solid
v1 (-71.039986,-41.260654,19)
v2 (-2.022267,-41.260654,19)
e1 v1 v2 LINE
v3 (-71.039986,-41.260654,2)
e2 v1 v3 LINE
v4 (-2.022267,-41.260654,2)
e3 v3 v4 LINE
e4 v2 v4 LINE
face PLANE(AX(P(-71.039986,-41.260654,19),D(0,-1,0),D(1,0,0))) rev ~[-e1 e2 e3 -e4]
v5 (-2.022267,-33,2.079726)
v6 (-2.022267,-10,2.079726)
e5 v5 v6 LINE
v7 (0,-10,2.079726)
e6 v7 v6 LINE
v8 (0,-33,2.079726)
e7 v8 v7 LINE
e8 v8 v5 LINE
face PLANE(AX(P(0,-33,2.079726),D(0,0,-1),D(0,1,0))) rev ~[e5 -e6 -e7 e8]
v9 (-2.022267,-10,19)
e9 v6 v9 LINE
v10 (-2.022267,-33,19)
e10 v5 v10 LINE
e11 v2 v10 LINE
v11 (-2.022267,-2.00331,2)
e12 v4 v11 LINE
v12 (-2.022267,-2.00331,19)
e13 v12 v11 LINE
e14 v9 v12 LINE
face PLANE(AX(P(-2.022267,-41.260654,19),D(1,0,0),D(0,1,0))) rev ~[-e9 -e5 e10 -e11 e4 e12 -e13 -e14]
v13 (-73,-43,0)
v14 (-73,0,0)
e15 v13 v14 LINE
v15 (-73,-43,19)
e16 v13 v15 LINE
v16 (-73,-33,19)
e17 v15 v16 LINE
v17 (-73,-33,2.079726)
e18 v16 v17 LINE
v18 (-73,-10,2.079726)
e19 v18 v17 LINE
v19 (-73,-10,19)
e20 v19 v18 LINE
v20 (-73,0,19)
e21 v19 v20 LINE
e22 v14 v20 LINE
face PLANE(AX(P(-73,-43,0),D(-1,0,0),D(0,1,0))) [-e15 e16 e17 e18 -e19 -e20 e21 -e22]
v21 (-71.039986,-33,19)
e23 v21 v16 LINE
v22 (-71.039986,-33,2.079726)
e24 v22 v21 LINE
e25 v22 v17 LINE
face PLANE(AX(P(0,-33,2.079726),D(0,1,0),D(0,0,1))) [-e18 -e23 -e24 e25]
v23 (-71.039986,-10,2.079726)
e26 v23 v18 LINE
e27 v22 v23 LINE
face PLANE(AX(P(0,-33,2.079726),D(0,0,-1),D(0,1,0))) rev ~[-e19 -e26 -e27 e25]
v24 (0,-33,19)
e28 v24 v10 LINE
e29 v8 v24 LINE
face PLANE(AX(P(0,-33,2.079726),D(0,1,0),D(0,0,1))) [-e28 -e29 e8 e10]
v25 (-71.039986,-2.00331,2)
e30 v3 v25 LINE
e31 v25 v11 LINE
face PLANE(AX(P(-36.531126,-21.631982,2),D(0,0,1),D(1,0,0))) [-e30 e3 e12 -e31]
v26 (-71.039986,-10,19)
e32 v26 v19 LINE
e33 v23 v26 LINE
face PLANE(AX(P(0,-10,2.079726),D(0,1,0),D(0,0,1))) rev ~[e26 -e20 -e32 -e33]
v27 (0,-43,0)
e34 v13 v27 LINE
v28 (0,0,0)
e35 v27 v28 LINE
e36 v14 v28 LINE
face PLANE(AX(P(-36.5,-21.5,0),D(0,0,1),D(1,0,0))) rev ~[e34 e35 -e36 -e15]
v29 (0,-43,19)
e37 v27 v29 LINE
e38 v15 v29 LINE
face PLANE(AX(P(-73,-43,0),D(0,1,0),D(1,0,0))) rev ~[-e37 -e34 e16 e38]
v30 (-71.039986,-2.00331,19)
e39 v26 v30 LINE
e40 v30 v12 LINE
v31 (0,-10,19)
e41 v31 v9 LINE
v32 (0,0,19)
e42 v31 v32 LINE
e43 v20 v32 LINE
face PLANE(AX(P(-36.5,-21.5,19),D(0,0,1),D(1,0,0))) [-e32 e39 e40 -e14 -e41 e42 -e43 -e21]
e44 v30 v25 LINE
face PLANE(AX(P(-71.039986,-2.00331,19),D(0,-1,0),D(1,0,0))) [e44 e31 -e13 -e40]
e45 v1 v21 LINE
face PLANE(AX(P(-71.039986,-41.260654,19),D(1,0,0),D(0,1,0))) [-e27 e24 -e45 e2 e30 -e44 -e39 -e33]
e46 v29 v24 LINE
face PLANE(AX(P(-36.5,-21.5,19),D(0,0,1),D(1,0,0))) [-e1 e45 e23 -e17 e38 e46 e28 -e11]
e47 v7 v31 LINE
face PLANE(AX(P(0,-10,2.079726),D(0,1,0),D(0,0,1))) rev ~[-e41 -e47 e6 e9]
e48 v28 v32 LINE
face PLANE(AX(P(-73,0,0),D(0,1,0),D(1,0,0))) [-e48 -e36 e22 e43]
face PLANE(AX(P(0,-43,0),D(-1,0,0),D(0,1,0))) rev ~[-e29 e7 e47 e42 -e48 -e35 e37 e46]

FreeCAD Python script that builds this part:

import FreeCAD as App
import Part
import Sketcher
from FreeCAD import Vector
Q = App.Units.Quantity


def add_polygon(sketch, points):
    """Adds a closed chain of lines whose ends are joined by coincident constraints."""
    first, n = sketch.GeometryCount, len(points)
    for a, b in zip(points, points[1:] + points[:1]):
        sketch.addGeometry(Part.LineSegment(App.Vector(*a, 0), App.Vector(*b, 0)), False)
    for i in range(n):
        sketch.addConstraint(Sketcher.Constraint("Coincident", first + i, 2, first + (i + 1) % n, 1))

doc = App.newDocument("Part")
body = doc.addObject("PartDesign::Body", "Body")

# Sketch on XY plane
sketch1 = body.newObject("Sketcher::SketchObject", "Sketch")
sketch1.AttachmentSupport = (doc.getObject("XY_Plane"), [""])
sketch1.MapMode = "FlatFace"
add_polygon(sketch1, [(-73, 0), (-73, -43), (0, -43), (0, 0)])  # lines 0-3
sketch1.addConstraint(Sketcher.Constraint("Vertical", 0))
sketch1.addConstraint(Sketcher.Constraint("Horizontal", 1))
sketch1.addConstraint(Sketcher.Constraint("Vertical", 2))
sketch1.addConstraint(Sketcher.Constraint("Horizontal", 3))
sketch1.addConstraint(Sketcher.Constraint("Coincident", 2, 2, -1, 1))
sketch1.addConstraint(Sketcher.Constraint("DistanceX", 1, 1, 1, 2, Q("73 mm")))
sketch1.addConstraint(Sketcher.Constraint("DistanceY", 0, 2, 0, 1, Q("43 mm")))
pad1 = body.newObject("PartDesign::Pad", "Pad")
pad1.Profile = sketch1
pad1.Length = 19

# Sketch on XY plane
sketch2 = body.newObject("Sketcher::SketchObject", "Sketch001")
sketch2.AttachmentSupport = (doc.getObject("XY_Plane"), [""])
sketch2.MapMode = "FlatFace"
sketch2.AttachmentOffset = App.Placement(Vector(0, 0, 19), App.Rotation())
add_polygon(sketch2, [(-71, -2), (-71, -41), (-2, -41), (-2, -2)])  # lines 0-3
sketch2.addConstraint(Sketcher.Constraint("Vertical", 0))
sketch2.addConstraint(Sketcher.Constraint("Horizontal", 1))
sketch2.addConstraint(Sketcher.Constraint("Vertical", 2))
sketch2.addConstraint(Sketcher.Constraint("Horizontal", 3))
sketch2.addConstraint(Sketcher.Constraint("DistanceX", 1, 1, 1, 2, Q("69.017719 mm")))
sketch2.addConstraint(Sketcher.Constraint("DistanceY", 0, 2, 0, 1, Q("39.257344 mm")))
sketch2.addConstraint(Sketcher.Constraint("DistanceY", 2, 2, -1, 1, Q("2.00331 mm")))
sketch2.addConstraint(Sketcher.Constraint("DistanceX", 0, 2, -1, 1, Q("71.039986 mm")))
pocket1 = body.newObject("PartDesign::Pocket", "Pocket")
pocket1.Profile = sketch2
pocket1.Length = 17

# Sketch on YZ plane
sketch3 = body.newObject("Sketcher::SketchObject", "Sketch002")
sketch3.AttachmentSupport = (doc.getObject("YZ_Plane"), [""])
sketch3.MapMode = "FlatFace"
add_polygon(sketch3, [(-33, 19), (-33, 2), (-10, 2), (-10, 19)])  # lines 0-3
sketch3.addConstraint(Sketcher.Constraint("Vertical", 0))
sketch3.addConstraint(Sketcher.Constraint("Horizontal", 1))
sketch3.addConstraint(Sketcher.Constraint("Vertical", 2))
sketch3.addConstraint(Sketcher.Constraint("Horizontal", 3))
sketch3.addConstraint(Sketcher.Constraint("DistanceX", 1, 1, 1, 2, Q("23 mm")))
sketch3.addConstraint(Sketcher.Constraint("DistanceY", 0, 2, 0, 1, Q("17 mm")))
sketch3.addConstraint(Sketcher.Constraint("DistanceX", 0, 2, -1, 1, Q("33 mm")))
sketch3.addConstraint(Sketcher.Constraint("DistanceY", -1, 1, 0, 2, Q("2.079726 mm")))
pocket2 = body.newObject("PartDesign::Pocket", "Pocket001")
pocket2.Profile = sketch3
pocket2.Length = 80

doc.recompute()
